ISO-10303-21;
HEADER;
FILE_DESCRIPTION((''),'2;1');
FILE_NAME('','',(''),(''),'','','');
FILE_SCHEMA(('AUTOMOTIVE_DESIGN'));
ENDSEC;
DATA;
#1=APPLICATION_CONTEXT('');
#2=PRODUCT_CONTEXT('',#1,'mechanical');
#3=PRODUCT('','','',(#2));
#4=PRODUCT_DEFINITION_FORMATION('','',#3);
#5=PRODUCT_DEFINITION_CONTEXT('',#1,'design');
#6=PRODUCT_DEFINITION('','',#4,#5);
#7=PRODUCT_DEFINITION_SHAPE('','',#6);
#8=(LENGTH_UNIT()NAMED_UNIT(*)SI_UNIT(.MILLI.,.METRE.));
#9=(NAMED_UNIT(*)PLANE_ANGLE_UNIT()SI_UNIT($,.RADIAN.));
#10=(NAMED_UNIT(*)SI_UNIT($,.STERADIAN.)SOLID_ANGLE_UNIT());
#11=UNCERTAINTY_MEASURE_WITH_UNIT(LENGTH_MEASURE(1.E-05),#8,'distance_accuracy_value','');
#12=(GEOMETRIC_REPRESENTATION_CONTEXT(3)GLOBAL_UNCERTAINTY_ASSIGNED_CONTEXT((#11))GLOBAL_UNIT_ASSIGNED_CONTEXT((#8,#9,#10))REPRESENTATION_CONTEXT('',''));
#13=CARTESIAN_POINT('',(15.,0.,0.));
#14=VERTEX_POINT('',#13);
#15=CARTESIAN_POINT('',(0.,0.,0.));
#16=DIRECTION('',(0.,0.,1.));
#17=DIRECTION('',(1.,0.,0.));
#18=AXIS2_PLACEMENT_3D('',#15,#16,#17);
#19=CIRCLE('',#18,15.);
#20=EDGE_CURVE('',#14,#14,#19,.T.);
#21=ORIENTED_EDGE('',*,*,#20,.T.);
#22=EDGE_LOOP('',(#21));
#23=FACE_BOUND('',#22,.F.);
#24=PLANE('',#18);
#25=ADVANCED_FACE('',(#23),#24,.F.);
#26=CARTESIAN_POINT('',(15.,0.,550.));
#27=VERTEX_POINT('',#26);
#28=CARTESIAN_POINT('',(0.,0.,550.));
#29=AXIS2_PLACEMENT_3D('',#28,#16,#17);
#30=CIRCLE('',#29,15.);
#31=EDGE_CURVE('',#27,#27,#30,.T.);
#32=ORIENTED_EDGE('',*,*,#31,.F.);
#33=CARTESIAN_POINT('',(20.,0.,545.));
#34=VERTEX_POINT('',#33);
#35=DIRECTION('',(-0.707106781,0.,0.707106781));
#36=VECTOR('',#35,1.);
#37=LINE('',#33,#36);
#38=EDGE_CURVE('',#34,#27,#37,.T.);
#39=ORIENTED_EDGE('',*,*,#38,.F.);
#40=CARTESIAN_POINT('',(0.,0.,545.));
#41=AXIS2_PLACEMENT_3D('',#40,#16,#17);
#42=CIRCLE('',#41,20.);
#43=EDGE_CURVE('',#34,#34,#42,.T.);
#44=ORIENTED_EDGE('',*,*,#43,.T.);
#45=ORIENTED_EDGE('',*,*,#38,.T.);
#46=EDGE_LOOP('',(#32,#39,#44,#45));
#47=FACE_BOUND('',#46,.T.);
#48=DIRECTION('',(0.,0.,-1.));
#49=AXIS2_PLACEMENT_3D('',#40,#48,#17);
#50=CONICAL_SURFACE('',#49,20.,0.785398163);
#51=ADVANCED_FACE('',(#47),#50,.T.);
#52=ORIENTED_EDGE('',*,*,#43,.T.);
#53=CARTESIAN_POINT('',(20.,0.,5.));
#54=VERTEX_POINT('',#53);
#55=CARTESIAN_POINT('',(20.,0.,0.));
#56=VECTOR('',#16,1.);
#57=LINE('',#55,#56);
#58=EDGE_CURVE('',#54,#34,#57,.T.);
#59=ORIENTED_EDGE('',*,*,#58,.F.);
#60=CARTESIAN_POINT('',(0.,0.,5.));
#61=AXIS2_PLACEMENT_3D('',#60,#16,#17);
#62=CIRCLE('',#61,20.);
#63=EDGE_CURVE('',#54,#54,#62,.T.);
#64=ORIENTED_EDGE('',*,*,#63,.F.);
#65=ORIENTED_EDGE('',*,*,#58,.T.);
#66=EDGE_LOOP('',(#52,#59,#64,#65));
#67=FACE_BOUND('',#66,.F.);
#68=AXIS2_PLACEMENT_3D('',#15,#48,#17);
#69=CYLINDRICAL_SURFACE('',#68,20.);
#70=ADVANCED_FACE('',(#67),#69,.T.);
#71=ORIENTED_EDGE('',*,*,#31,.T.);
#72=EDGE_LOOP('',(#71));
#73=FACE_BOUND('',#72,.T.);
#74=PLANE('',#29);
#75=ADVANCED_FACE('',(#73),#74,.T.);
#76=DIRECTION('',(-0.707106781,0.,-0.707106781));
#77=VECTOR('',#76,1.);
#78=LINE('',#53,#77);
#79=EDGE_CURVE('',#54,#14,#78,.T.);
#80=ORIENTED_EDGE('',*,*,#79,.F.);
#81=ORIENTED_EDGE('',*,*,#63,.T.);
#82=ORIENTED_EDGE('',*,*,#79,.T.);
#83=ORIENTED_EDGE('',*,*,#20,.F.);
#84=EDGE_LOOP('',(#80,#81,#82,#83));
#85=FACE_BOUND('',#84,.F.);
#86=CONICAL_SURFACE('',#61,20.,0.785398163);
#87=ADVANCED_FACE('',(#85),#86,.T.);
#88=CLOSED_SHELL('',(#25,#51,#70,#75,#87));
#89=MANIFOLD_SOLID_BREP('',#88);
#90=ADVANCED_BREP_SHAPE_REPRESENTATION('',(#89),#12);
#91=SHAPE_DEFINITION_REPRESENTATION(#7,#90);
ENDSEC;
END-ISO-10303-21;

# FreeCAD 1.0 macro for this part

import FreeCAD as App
import Part
import Sketcher

V = App.Vector


def edges_at(feature, points):
    """Names of the edges that pass closest to the given points."""
    edges = feature.Shape.Edges
    near = lambda p: min(range(len(edges)), key=lambda i: edges[i].distToShape(Part.Vertex(*p))[0])
    return sorted({f"Edge{near(p) + 1}" for p in points})

doc = App.newDocument("Part")
body = doc.addObject("PartDesign::Body", "Body")

# Sketch on XY plane
sketch1 = doc.addObject("Sketcher::SketchObject", "Sketch")
body.addObject(sketch1)
sketch1.AttachmentSupport = (doc.XY_Plane, [""])
sketch1.MapMode = "FlatFace"
sketch1.addGeometry(Part.Circle(V(0, 0, 0), V(0, 0, 1), 20), False)
sketch1.addConstraint(Sketcher.Constraint("Coincident", 0, 3, -1, 1))
sketch1.addConstraint(Sketcher.Constraint("Diameter", 0, 40.0))
pad1 = doc.addObject("PartDesign::Pad", "Pad")
body.addObject(pad1)
pad1.Profile = sketch1
pad1.Length = 550
doc.recompute()

chamfer = doc.addObject("PartDesign::Chamfer", "Chamfer")
body.addObject(chamfer)
chamfer.Base = (pad1, edges_at(pad1, [(-20, 0, 0), (-20, 0, 550)]))
chamfer.Size = 5

doc.recompute()
